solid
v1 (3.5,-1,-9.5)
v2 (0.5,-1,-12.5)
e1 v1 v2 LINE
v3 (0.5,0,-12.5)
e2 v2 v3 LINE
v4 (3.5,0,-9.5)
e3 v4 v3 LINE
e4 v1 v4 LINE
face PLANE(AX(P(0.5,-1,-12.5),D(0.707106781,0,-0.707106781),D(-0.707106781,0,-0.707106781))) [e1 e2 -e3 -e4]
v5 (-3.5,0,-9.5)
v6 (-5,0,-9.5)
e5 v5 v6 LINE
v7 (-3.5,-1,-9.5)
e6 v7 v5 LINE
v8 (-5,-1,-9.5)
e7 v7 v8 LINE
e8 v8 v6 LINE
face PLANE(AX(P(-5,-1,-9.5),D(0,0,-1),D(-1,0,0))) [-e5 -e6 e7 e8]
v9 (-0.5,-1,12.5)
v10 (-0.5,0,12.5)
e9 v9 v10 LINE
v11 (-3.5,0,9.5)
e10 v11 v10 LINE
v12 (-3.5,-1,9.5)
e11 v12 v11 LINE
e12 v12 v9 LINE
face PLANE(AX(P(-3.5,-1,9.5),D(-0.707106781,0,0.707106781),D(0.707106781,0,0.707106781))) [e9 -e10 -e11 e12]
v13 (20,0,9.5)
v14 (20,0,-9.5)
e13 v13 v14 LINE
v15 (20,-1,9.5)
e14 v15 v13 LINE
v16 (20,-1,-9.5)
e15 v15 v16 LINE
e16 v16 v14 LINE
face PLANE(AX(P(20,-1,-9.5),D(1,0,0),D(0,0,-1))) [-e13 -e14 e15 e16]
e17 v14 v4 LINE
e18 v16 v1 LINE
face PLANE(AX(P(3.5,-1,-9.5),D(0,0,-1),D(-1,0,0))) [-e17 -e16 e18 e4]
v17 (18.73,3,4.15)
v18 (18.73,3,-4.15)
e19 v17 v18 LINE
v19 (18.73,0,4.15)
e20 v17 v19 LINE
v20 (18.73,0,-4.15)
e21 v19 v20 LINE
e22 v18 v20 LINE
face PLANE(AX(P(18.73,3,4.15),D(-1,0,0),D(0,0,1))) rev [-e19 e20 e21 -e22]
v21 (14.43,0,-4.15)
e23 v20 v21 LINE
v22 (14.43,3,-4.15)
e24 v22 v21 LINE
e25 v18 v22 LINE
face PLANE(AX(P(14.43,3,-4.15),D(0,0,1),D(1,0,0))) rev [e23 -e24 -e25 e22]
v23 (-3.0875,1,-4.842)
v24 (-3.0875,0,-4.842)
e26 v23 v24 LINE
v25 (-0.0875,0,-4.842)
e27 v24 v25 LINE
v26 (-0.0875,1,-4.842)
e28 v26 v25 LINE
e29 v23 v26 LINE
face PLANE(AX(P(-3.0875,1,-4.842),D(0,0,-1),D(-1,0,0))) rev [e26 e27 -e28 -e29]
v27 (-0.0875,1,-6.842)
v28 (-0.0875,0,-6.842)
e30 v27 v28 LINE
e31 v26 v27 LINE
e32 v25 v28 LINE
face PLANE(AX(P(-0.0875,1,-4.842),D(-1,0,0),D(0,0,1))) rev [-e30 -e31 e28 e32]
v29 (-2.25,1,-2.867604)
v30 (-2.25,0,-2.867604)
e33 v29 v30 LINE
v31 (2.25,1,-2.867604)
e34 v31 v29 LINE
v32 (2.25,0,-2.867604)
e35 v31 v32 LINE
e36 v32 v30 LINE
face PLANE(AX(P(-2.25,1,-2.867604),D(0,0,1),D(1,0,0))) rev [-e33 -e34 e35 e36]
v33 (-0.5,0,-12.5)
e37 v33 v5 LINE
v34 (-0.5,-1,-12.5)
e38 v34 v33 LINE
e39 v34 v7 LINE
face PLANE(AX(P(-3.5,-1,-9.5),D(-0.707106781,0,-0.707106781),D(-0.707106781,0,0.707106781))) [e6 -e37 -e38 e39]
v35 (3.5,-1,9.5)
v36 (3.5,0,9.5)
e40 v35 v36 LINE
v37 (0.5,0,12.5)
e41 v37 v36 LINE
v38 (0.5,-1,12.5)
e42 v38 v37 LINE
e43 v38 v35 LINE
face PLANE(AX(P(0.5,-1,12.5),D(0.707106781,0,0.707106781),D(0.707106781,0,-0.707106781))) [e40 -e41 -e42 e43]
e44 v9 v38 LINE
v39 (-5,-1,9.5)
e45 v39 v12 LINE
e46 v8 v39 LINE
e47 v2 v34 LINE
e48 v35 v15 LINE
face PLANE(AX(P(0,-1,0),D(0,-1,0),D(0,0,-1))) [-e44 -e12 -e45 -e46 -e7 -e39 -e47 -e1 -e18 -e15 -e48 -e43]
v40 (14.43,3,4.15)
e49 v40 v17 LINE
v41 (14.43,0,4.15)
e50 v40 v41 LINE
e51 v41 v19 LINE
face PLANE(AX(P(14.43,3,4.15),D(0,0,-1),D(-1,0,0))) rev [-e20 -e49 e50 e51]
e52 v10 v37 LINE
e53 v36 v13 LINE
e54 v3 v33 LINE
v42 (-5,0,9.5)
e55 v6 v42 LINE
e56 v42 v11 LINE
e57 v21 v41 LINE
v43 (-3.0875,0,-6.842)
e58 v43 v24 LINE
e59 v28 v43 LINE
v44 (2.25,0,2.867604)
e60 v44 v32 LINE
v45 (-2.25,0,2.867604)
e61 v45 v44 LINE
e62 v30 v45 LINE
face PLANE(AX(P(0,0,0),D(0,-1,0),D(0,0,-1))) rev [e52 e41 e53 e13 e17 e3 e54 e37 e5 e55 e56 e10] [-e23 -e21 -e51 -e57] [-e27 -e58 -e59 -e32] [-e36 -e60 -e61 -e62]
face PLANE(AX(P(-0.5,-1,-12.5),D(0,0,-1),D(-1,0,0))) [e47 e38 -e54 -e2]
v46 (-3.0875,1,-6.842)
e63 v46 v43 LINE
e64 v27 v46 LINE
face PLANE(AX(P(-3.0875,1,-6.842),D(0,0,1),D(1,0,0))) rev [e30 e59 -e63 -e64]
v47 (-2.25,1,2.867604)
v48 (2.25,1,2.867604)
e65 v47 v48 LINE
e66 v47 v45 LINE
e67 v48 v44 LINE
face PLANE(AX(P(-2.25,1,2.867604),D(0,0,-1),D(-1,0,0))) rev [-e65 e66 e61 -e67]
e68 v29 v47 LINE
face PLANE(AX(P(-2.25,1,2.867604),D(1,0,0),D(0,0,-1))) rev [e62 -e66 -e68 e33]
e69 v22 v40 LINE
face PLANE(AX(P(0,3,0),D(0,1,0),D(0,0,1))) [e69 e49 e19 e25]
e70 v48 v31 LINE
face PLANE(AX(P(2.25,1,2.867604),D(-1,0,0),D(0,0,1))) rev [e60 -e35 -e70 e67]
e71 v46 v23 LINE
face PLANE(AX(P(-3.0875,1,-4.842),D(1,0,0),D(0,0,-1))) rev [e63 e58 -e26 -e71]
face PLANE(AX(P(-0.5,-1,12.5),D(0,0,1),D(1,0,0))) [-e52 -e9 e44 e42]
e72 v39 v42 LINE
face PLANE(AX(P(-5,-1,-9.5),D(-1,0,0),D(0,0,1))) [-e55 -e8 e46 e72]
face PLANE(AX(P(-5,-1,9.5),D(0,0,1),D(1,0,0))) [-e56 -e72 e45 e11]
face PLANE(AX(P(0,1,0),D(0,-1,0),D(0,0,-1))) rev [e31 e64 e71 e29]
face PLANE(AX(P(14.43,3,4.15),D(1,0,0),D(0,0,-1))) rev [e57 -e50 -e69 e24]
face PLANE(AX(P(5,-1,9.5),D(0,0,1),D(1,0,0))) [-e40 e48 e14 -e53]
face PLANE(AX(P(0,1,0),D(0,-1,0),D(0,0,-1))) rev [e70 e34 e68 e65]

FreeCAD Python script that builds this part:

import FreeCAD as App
import Part
import Sketcher
from FreeCAD import Vector


def add_polygon(sketch, points):
    """Adds a closed chain of lines whose ends are joined by coincident constraints."""
    first, n = sketch.GeometryCount, len(points)
    for a, b in zip(points, points[1:] + points[:1]):
        sketch.addGeometry(Part.LineSegment(App.Vector(*a, 0), App.Vector(*b, 0)), False)
    for i in range(n):
        sketch.addConstraint(Sketcher.Constraint("Coincident", first + i, 2, first + (i + 1) % n, 1))

doc = App.newDocument("Part")
body = doc.addObject("PartDesign::Body", "Body")

sketch1 = body.newObject("Sketcher::SketchObject", "Sketch")
sketch1.AttachmentSupport = (doc.getObject("XZ_Plane"), [""])
sketch1.MapMode = "FlatFace"
add_polygon(sketch1, [(-0.5, -12.5), (-3.5, -9.5), (-5, -9.5), (-5, 9.5), (-3.5, 9.5), (-0.5, 12.5), (0.5, 12.5), (3.5, 9.5), (20, 9.5), (20, -9.5), (3.5, -9.5), (0.5, -12.5)])
sketch1.addConstraint([
    Sketcher.Constraint("Horizontal", 1),
    Sketcher.Constraint("Vertical", 2),
    Sketcher.Constraint("Horizontal", 3),
    Sketcher.Constraint("Horizontal", 5),
    Sketcher.Constraint("Horizontal", 7),
    Sketcher.Constraint("Vertical", 8),
    Sketcher.Constraint("Horizontal", 9),
    Sketcher.Constraint("Horizontal", 11),
    Sketcher.Constraint("Symmetric", 0, 2, 6, 2, -1, 1),
    Sketcher.Constraint("Symmetric", 3, 2, 9, 2, -1, 1),
    Sketcher.Constraint("Symmetric", 4, 2, 10, 2, -1, 1),
    Sketcher.Constraint("Symmetric", 3, 2, 6, 2, -2),
    Sketcher.Constraint("Perpendicular", 0, 4),
    Sketcher.Constraint("Perpendicular", 4, 6),
    Sketcher.Constraint("Vertical", 5, 2, 10, 2),
    Sketcher.Constraint("DistanceX", 5, 1, 5, 2, 1.0),
    Sketcher.Constraint("DistanceY", 2, 1, 2, 2, 19.0),
    Sketcher.Constraint("DistanceX", 1, 2, 1, 1, 1.5),
    Sketcher.Constraint("DistanceX", 7, 1, 7, 2, 16.5),
    Sketcher.Constraint("DistanceX", 1, 2, -1, 1, 5.0),
])
pad1 = body.newObject("PartDesign::Pad", "Pad")
pad1.Profile = sketch1
pad1.Length = 1

sketch2 = body.newObject("Sketcher::SketchObject", "Sketch001")
sketch2.AttachmentSupport = (doc.getObject("XZ_Plane"), [""])
sketch2.MapMode = "FlatFace"
add_polygon(sketch2, [(-2.25, -2.867604), (-2.25, 2.867604), (2.25, 2.867604), (2.25, -2.867604)])
add_polygon(sketch2, [(-3.0875, -6.842), (-3.0875, -4.842), (-0.0875, -4.842), (-0.0875, -6.842)])
sketch2.addConstraint([
    Sketcher.Constraint("Vertical", 0),
    Sketcher.Constraint("Horizontal", 1),
    Sketcher.Constraint("Vertical", 2),
    Sketcher.Constraint("Horizontal", 3),
    Sketcher.Constraint("Vertical", 4),
    Sketcher.Constraint("Horizontal", 5),
    Sketcher.Constraint("Vertical", 6),
    Sketcher.Constraint("Horizontal", 7),
    Sketcher.Constraint("Symmetric", 0, 2, 2, 2, -1, 1),
    Sketcher.Constraint("DistanceX", 5, 1, 5, 2, 3.0),
    Sketcher.Constraint("DistanceY", 4, 1, 4, 2, 2.0),
    Sketcher.Constraint("DistanceX", 1, 1, 1, 2, 4.5),
    Sketcher.Constraint("DistanceY", 4, 2, -1, 1, 4.842),
    Sketcher.Constraint("DistanceY", 0, 1, 0, 2, 5.735208),
    Sketcher.Constraint("DistanceX", 4, 2, -1, 1, 3.0875),
])
pad2 = body.newObject("PartDesign::Pad", "Pad001")
pad2.Profile = sketch2
pad2.Length = 1
pad2.Reversed = True

sketch3 = body.newObject("Sketcher::SketchObject", "Sketch002")
sketch3.AttachmentSupport = (doc.getObject("XZ_Plane"), [""])
sketch3.MapMode = "FlatFace"
add_polygon(sketch3, [(14.43, -4.15), (14.43, 4.15), (18.73, 4.15), (18.73, -4.15)])
sketch3.addConstraint([
    Sketcher.Constraint("Vertical", 0),
    Sketcher.Constraint("Horizontal", 1),
    Sketcher.Constraint("Vertical", 2),
    Sketcher.Constraint("Horizontal", 3),
    Sketcher.Constraint("DistanceX", 1, 1, 1, 2, 4.3),
    Sketcher.Constraint("DistanceY", 0, 1, 0, 2, 8.3),
    Sketcher.Constraint("DistanceX", -1, 1, 0, 2, 14.43),
    Sketcher.Constraint("DistanceY", -1, 1, 0, 2, 4.15),
])
pad3 = body.newObject("PartDesign::Pad", "Pad002")
pad3.Profile = sketch3
pad3.Length = 3
pad3.Reversed = True

doc.recompute()
